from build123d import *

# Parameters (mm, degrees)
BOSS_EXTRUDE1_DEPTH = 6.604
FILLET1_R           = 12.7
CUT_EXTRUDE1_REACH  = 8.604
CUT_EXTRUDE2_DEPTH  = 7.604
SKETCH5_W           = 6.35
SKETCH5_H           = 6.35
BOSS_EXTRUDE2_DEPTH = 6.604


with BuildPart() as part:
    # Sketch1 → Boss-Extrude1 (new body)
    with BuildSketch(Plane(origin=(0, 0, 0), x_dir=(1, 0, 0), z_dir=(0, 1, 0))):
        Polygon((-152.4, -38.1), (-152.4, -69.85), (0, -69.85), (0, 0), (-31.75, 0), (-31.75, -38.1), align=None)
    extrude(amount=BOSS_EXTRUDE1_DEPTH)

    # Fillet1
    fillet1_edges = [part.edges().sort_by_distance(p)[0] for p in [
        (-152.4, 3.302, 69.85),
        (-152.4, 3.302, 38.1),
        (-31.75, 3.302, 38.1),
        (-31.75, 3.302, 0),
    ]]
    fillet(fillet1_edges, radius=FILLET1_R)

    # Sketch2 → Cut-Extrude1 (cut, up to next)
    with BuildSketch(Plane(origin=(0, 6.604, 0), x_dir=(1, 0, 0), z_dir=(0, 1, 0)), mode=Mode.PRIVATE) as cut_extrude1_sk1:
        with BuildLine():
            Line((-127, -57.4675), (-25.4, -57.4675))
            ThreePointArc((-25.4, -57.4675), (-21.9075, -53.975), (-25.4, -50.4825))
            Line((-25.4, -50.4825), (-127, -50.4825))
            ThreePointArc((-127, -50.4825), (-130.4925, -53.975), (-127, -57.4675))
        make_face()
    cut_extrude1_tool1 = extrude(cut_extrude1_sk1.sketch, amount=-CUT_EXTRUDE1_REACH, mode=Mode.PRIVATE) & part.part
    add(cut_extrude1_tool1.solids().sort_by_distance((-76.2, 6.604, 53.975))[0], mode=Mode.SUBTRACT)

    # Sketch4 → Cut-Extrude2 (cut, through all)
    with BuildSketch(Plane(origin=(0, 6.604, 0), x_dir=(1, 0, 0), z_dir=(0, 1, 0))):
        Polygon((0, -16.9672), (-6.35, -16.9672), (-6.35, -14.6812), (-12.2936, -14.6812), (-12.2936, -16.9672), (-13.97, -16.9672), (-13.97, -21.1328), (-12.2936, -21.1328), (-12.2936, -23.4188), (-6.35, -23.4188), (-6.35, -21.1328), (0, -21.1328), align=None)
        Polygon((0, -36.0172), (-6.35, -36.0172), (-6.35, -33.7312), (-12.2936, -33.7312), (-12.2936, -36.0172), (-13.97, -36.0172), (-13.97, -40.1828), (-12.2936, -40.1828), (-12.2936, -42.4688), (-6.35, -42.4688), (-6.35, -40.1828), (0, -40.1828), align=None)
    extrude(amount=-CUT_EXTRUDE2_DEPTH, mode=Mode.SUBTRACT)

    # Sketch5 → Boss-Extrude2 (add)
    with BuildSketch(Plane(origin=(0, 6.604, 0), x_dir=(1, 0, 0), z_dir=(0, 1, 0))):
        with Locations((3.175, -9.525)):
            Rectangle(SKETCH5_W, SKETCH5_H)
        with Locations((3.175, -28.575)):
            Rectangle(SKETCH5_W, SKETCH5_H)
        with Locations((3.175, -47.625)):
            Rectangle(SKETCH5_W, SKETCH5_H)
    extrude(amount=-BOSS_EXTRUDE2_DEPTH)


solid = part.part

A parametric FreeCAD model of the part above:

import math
import FreeCAD as App
import Part
import Sketcher

V = App.Vector
Q = App.Units.Quantity


def edges_at(feature, points):
    """Names of the edges that pass closest to the given points."""
    edges = feature.Shape.Edges
    near = lambda p: min(range(len(edges)), key=lambda i: edges[i].distToShape(Part.Vertex(*p))[0])
    return sorted({f"Edge{near(p) + 1}" for p in points})

doc = App.newDocument("Part")
params = doc.addObject("Spreadsheet::Sheet", "Params")
for row, (alias, value) in enumerate([
    ("sketch1_width", "6 in"),
    ("sketch1_height", "1.5 in"),
    ("sketch1_width2", "1.25 in"),
    ("pad1_length", "0.26 in"),
    ("fillet_radius", "0.5 in"),
    ("sketch2_width", "4 in"),
    ("sketch3_width", "0.25 in"),
    ("sketch3_height", "0.09 in"),
    ("sketch3_width2", "0.234 in"),
    ("sketch3_height2", "0.164 in"),
    ("sketch4_width", "0.25 in"),
    ("pad2_length", "0.26 in"),
], start=1):
    params.set(f"A{row}", alias)
    params.set(f"B{row}", "=" + value)
    params.setAlias(f"B{row}", alias)

body = doc.addObject("PartDesign::Body", "Body")

# Sketch on XZ plane
sketch1 = doc.addObject("Sketcher::SketchObject", "Sketch")
body.addObject(sketch1)
sketch1.AttachmentSupport = (doc.XZ_Plane, [""])
sketch1.MapMode = "FlatFace"
sketch1.addGeometry([
    Part.LineSegment(V(-152, 38, 0), V(-152, 70, 0)),  # 0
    Part.LineSegment(V(-152, 70, 0), V(0, 70, 0)),  # 1
    Part.LineSegment(V(0, 70, 0), V(0, 0, 0)),  # 2
    Part.LineSegment(V(0, 0, 0), V(-32, 0, 0)),  # 3
    Part.LineSegment(V(-32, 0, 0), V(-32, 38, 0)),  # 4
    Part.LineSegment(V(-32, 38, 0), V(-152, 38, 0)),  # 5
], False)
sketch1.addConstraint([
    Sketcher.Constraint("Coincident", 0, 2, 1, 1),
    Sketcher.Constraint("Coincident", 1, 2, 2, 1),
    Sketcher.Constraint("Coincident", 2, 2, 3, 1),
    Sketcher.Constraint("Coincident", 3, 2, 4, 1),
    Sketcher.Constraint("Coincident", 4, 2, 5, 1),
    Sketcher.Constraint("Coincident", 5, 2, 0, 1),
    Sketcher.Constraint("Vertical", 0),
    Sketcher.Constraint("Horizontal", 1),
    Sketcher.Constraint("Vertical", 2),
    Sketcher.Constraint("Horizontal", 3),
    Sketcher.Constraint("Vertical", 4),
    Sketcher.Constraint("Horizontal", 5),
    Sketcher.Constraint("Coincident", 2, 2, -1, 1),
    Sketcher.Constraint("Equal", 3, 0),
    Sketcher.Constraint("DistanceX", 1, 1, 1, 2, Q("6 in")),
    Sketcher.Constraint("DistanceY", 4, 1, 4, 2, Q("1.5 in")),
    Sketcher.Constraint("DistanceX", 3, 2, 3, 1, Q("1.25 in")),
])
sketch1.setExpression("Constraints[14]", "Params.sketch1_width")
sketch1.setExpression("Constraints[15]", "Params.sketch1_height")
sketch1.setExpression("Constraints[16]", "Params.sketch1_width2")
pad1 = doc.addObject("PartDesign::Pad", "Pad")
body.addObject(pad1)
pad1.Profile = sketch1
pad1.setExpression("Length", "Params.pad1_length")
pad1.Reversed = True
doc.recompute()

fillet = doc.addObject("PartDesign::Fillet", "Fillet")
body.addObject(fillet)
fillet.Base = (pad1, edges_at(pad1, [
    (-152.4, 3.302, 69.85),
    (-152.4, 3.302, 38.1),
    (-31.75, 3.302, 38.1),
    (-31.75, 3.302, 0),
]))
fillet.setExpression("Radius", "Params.fillet_radius")

# Sketch on XZ plane
sketch2 = doc.addObject("Sketcher::SketchObject", "Sketch001")
body.addObject(sketch2)
sketch2.AttachmentSupport = (doc.XZ_Plane, [""])
sketch2.MapMode = "FlatFace"
sketch2.AttachmentOffset = App.Placement(V(0, 0, -0.26 * 25.4), App.Rotation())
sketch2.addGeometry([
    Part.LineSegment(V(-127, 57.5, 0), V(-25.4, 57.5, 0)),
    Part.ArcOfCircle(Part.Circle(V(-25.4, 54, 0), V(0, 0, 1), 3.5), math.radians(-90), math.radians(90)),
    Part.LineSegment(V(-25.4, 50.5, 0), V(-127, 50.5, 0)),
    Part.ArcOfCircle(Part.Circle(V(-127, 54, 0), V(0, 0, 1), 3.5), math.radians(90), math.radians(270)),
], False)
sketch2.addConstraint([
    Sketcher.Constraint("Tangent", 0, 2, 1, 2),
    Sketcher.Constraint("Tangent", 1, 1, 2, 1),
    Sketcher.Constraint("Tangent", 2, 2, 3, 2),
    Sketcher.Constraint("Tangent", 3, 1, 0, 1),
    Sketcher.Constraint("Horizontal", 0),
    Sketcher.Constraint("Horizontal", 2),
    Sketcher.Constraint("DistanceX", 0, 1, 0, 2, Q("4 in")),
    Sketcher.Constraint("DistanceX", 1, 3, -1, 1, Q("1 in")),
    Sketcher.Constraint("Radius", 1, Q("0.1375 in")),
    Sketcher.Constraint("DistanceY", -1, 1, 1, 3, Q("2.125 in")),
])
sketch2.setExpression("Constraints[6]", "Params.sketch2_width")
pocket1 = doc.addObject("PartDesign::Pocket", "Pocket")
body.addObject(pocket1)
pocket1.Profile = sketch2
pocket1.Type = "UpToFirst"
pocket1.Reversed = True

# Sketch on XZ plane
sketch3 = doc.addObject("Sketcher::SketchObject", "Sketch002")
body.addObject(sketch3)
sketch3.AttachmentSupport = (doc.XZ_Plane, [""])
sketch3.MapMode = "FlatFace"
sketch3.AttachmentOffset = App.Placement(V(0, 0, -0.26 * 25.4), App.Rotation())
sketch3.addGeometry([
    Part.LineSegment(V(0, 17, 0), V(-6.3, 17, 0)),  # 0
    Part.LineSegment(V(-6.3, 17, 0), V(-6.3, 14.7, 0)),  # 1
    Part.LineSegment(V(-6.3, 14.7, 0), V(-12.3, 14.7, 0)),  # 2
    Part.LineSegment(V(-12.3, 14.7, 0), V(-12.3, 17, 0)),  # 3
    Part.LineSegment(V(-12.3, 17, 0), V(-14, 17, 0)),  # 4
    Part.LineSegment(V(-14, 17, 0), V(-14, 21.1, 0)),  # 5
    Part.LineSegment(V(-14, 21.1, 0), V(-12.3, 21.1, 0)),  # 6
    Part.LineSegment(V(-12.3, 21.1, 0), V(-12.3, 23.4, 0)),  # 7
    Part.LineSegment(V(-12.3, 23.4, 0), V(-6.3, 23.4, 0)),  # 8
    Part.LineSegment(V(-6.3, 23.4, 0), V(-6.3, 21.1, 0)),  # 9
    Part.LineSegment(V(-6.3, 21.1, 0), V(0, 21.1, 0)),  # 10
    Part.LineSegment(V(0, 21.1, 0), V(0, 17, 0)),  # 11
    Part.LineSegment(V(0, 36, 0), V(-6.3, 36, 0)),  # 12
    Part.LineSegment(V(-6.3, 36, 0), V(-6.3, 33.7, 0)),  # 13
    Part.LineSegment(V(-6.3, 33.7, 0), V(-12.3, 33.7, 0)),  # 14
    Part.LineSegment(V(-12.3, 33.7, 0), V(-12.3, 36, 0)),  # 15
    Part.LineSegment(V(-12.3, 36, 0), V(-14, 36, 0)),  # 16
    Part.LineSegment(V(-14, 36, 0), V(-14, 40.2, 0)),  # 17
    Part.LineSegment(V(-14, 40.2, 0), V(-12.3, 40.2, 0)),  # 18
    Part.LineSegment(V(-12.3, 40.2, 0), V(-12.3, 42.5, 0)),  # 19
    Part.LineSegment(V(-12.3, 42.5, 0), V(-6.3, 42.5, 0)),  # 20
    Part.LineSegment(V(-6.3, 42.5, 0), V(-6.3, 40.2, 0)),  # 21
    Part.LineSegment(V(-6.3, 40.2, 0), V(0, 40.2, 0)),  # 22
    Part.LineSegment(V(0, 40.2, 0), V(0, 36, 0)),  # 23
], False)
sketch3.addConstraint([
    Sketcher.Constraint("Coincident", 0, 2, 1, 1),
    Sketcher.Constraint("Coincident", 1, 2, 2, 1),
    Sketcher.Constraint("Coincident", 2, 2, 3, 1),
    Sketcher.Constraint("Coincident", 3, 2, 4, 1),
    Sketcher.Constraint("Coincident", 4, 2, 5, 1),
    Sketcher.Constraint("Coincident", 5, 2, 6, 1),
    Sketcher.Constraint("Coincident", 6, 2, 7, 1),
    Sketcher.Constraint("Coincident", 7, 2, 8, 1),
    Sketcher.Constraint("Coincident", 8, 2, 9, 1),
    Sketcher.Constraint("Coincident", 9, 2, 10, 1),
    Sketcher.Constraint("Coincident", 10, 2, 11, 1),
    Sketcher.Constraint("Coincident", 11, 2, 0, 1),
    Sketcher.Constraint("Coincident", 12, 2, 13, 1),
    Sketcher.Constraint("Coincident", 13, 2, 14, 1),
    Sketcher.Constraint("Coincident", 14, 2, 15, 1),
    Sketcher.Constraint("Coincident", 15, 2, 16, 1),
    Sketcher.Constraint("Coincident", 16, 2, 17, 1),
    Sketcher.Constraint("Coincident", 17, 2, 18, 1),
    Sketcher.Constraint("Coincident", 18, 2, 19, 1),
    Sketcher.Constraint("Coincident", 19, 2, 20, 1),
    Sketcher.Constraint("Coincident", 20, 2, 21, 1),
    Sketcher.Constraint("Coincident", 21, 2, 22, 1),
    Sketcher.Constraint("Coincident", 22, 2, 23, 1),
    Sketcher.Constraint("Coincident", 23, 2, 12, 1),
    Sketcher.Constraint("Horizontal", 0),
    Sketcher.Constraint("Vertical", 1),
    Sketcher.Constraint("Horizontal", 2),
    Sketcher.Constraint("Vertical", 3),
    Sketcher.Constraint("Horizontal", 4),
    Sketcher.Constraint("Vertical", 5),
    Sketcher.Constraint("Horizontal", 6),
    Sketcher.Constraint("Vertical", 7),
    Sketcher.Constraint("Horizontal", 8),
    Sketcher.Constraint("Vertical", 9),
    Sketcher.Constraint("Horizontal", 10),
    Sketcher.Constraint("Vertical", 11),
    Sketcher.Constraint("Horizontal", 12),
    Sketcher.Constraint("Vertical", 13),
    Sketcher.Constraint("Horizontal", 14),
    Sketcher.Constraint("Vertical", 15),
    Sketcher.Constraint("Horizontal", 16),
    Sketcher.Constraint("Vertical", 17),
    Sketcher.Constraint("Horizontal", 18),
    Sketcher.Constraint("Vertical", 19),
    Sketcher.Constraint("Horizontal", 20),
    Sketcher.Constraint("Vertical", 21),
    Sketcher.Constraint("Horizontal", 22),
    Sketcher.Constraint("Vertical", 23),
    Sketcher.Constraint("PointOnObject", 10, 2, -2),
    Sketcher.Constraint("PointOnObject", 22, 2, -2),
    Sketcher.Constraint("Horizontal", 0, 2, 3, 2),
    Sketcher.Constraint("Horizontal", 6, 2, 9, 2),
    Sketcher.Constraint("Horizontal", 12, 2, 15, 2),
    Sketcher.Constraint("Horizontal", 18, 2, 21, 2),
    Sketcher.Constraint("Vertical", 3, 2, 6, 2),
    Sketcher.Constraint("Vertical", 1, 2, 8, 2),
    Sketcher.Constraint("Vertical", 9, 2, 12, 2),
    Sketcher.Constraint("Vertical", 7, 2, 14, 2),
    Sketcher.Constraint("Vertical", 5, 2, 16, 2),
    Sketcher.Constraint("Vertical", 15, 2, 18, 2),
    Sketcher.Constraint("Vertical", 13, 2, 20, 2),
    Sketcher.Constraint("Equal", 3, 7),
    Sketcher.Constraint("Equal", 9, 13),
    Sketcher.Constraint("Equal", 11, 17),
    Sketcher.Constraint("Equal", 15, 19),
    Sketcher.Constraint("DistanceX", 0, 2, 0, 1, Q("0.25 in")),
    Sketcher.Constraint("DistanceY", 1, 2, 1, 1, Q("0.09 in")),
    Sketcher.Constraint("DistanceX", 4, 2, 0, 2, Q("0.3 in")),
    Sketcher.Constraint("DistanceX", 2, 2, 2, 1, Q("0.234 in")),
    Sketcher.Constraint("DistanceY", 5, 1, 5, 2, Q("0.164 in")),
    Sketcher.Constraint("DistanceY", -1, 1, 0, 2, Q("0.668 in")),
    Sketcher.Constraint("DistanceY", -1, 1, 12, 2, Q("1.418 in")),
])
sketch3.setExpression("Constraints[65]", "Params.sketch3_width")
sketch3.setExpression("Constraints[66]", "Params.sketch3_height")
sketch3.setExpression("Constraints[68]", "Params.sketch3_width2")
sketch3.setExpression("Constraints[69]", "Params.sketch3_height2")
pocket2 = doc.addObject("PartDesign::Pocket", "Pocket001")
body.addObject(pocket2)
pocket2.Profile = sketch3
pocket2.Type = "ThroughAll"
pocket2.Reversed = True

# Sketch on XZ plane
sketch4 = doc.addObject("Sketcher::SketchObject", "Sketch003")
body.addObject(sketch4)
sketch4.AttachmentSupport = (doc.XZ_Plane, [""])
sketch4.MapMode = "FlatFace"
sketch4.AttachmentOffset = App.Placement(V(0, 0, -0.26 * 25.4), App.Rotation())
sketch4.addGeometry([
    Part.LineSegment(V(0, 6, 0), V(0, 13, 0)),  # 0
    Part.LineSegment(V(0, 13, 0), V(6, 13, 0)),  # 1
    Part.LineSegment(V(6, 13, 0), V(6, 6, 0)),  # 2
    Part.LineSegment(V(6, 6, 0), V(0, 6, 0)),  # 3
    Part.LineSegment(V(0, 25, 0), V(0, 32, 0)),  # 4
    Part.LineSegment(V(0, 32, 0), V(6, 32, 0)),  # 5
    Part.LineSegment(V(6, 32, 0), V(6, 25, 0)),  # 6
    Part.LineSegment(V(6, 25, 0), V(0, 25, 0)),  # 7
    Part.LineSegment(V(0, 44, 0), V(0, 51, 0)),  # 8
    Part.LineSegment(V(0, 51, 0), V(6, 51, 0)),  # 9
    Part.LineSegment(V(6, 51, 0), V(6, 44, 0)),  # 10
    Part.LineSegment(V(6, 44, 0), V(0, 44, 0)),  # 11
], False)
sketch4.addConstraint([
    Sketcher.Constraint("Coincident", 0, 2, 1, 1),
    Sketcher.Constraint("Coincident", 1, 2, 2, 1),
    Sketcher.Constraint("Coincident", 2, 2, 3, 1),
    Sketcher.Constraint("Coincident", 3, 2, 0, 1),
    Sketcher.Constraint("Coincident", 4, 2, 5, 1),
    Sketcher.Constraint("Coincident", 5, 2, 6, 1),
    Sketcher.Constraint("Coincident", 6, 2, 7, 1),
    Sketcher.Constraint("Coincident", 7, 2, 4, 1),
    Sketcher.Constraint("Coincident", 8, 2, 9, 1),
    Sketcher.Constraint("Coincident", 9, 2, 10, 1),
    Sketcher.Constraint("Coincident", 10, 2, 11, 1),
    Sketcher.Constraint("Coincident", 11, 2, 8, 1),
    Sketcher.Constraint("Vertical", 0),
    Sketcher.Constraint("Horizontal", 1),
    Sketcher.Constraint("Vertical", 2),
    Sketcher.Constraint("Horizontal", 3),
    Sketcher.Constraint("Vertical", 4),
    Sketcher.Constraint("Horizontal", 5),
    Sketcher.Constraint("Vertical", 6),
    Sketcher.Constraint("Horizontal", 7),
    Sketcher.Constraint("Vertical", 8),
    Sketcher.Constraint("Horizontal", 9),
    Sketcher.Constraint("Vertical", 10),
    Sketcher.Constraint("Horizontal", 11),
    Sketcher.Constraint("PointOnObject", 0, 2, -2),
    Sketcher.Constraint("PointOnObject", 4, 2, -2),
    Sketcher.Constraint("PointOnObject", 8, 2, -2),
    Sketcher.Constraint("Vertical", 2, 2, 5, 2),
    Sketcher.Constraint("Vertical", 6, 2, 9, 2),
    Sketcher.Constraint("Equal", 11, 0),
    Sketcher.Constraint("Equal", 2, 4),
    Sketcher.Constraint("Equal", 6, 8),
    Sketcher.Constraint("DistanceY", -1, 1, 6, 2, Q("1 in")),
    Sketcher.Constraint("DistanceY", -1, 1, 8, 2, Q("2 in")),
    Sketcher.Constraint("DistanceY", 3, 2, 4, 2, Q("1 in")),
    Sketcher.Constraint("DistanceX", 1, 1, 1, 2, Q("0.25 in")),
])
sketch4.setExpression("Constraints[35]", "Params.sketch4_width")
pad2 = doc.addObject("PartDesign::Pad", "Pad001")
body.addObject(pad2)
pad2.Profile = sketch4
pad2.setExpression("Length", "Params.pad2_length")

doc.recompute()
